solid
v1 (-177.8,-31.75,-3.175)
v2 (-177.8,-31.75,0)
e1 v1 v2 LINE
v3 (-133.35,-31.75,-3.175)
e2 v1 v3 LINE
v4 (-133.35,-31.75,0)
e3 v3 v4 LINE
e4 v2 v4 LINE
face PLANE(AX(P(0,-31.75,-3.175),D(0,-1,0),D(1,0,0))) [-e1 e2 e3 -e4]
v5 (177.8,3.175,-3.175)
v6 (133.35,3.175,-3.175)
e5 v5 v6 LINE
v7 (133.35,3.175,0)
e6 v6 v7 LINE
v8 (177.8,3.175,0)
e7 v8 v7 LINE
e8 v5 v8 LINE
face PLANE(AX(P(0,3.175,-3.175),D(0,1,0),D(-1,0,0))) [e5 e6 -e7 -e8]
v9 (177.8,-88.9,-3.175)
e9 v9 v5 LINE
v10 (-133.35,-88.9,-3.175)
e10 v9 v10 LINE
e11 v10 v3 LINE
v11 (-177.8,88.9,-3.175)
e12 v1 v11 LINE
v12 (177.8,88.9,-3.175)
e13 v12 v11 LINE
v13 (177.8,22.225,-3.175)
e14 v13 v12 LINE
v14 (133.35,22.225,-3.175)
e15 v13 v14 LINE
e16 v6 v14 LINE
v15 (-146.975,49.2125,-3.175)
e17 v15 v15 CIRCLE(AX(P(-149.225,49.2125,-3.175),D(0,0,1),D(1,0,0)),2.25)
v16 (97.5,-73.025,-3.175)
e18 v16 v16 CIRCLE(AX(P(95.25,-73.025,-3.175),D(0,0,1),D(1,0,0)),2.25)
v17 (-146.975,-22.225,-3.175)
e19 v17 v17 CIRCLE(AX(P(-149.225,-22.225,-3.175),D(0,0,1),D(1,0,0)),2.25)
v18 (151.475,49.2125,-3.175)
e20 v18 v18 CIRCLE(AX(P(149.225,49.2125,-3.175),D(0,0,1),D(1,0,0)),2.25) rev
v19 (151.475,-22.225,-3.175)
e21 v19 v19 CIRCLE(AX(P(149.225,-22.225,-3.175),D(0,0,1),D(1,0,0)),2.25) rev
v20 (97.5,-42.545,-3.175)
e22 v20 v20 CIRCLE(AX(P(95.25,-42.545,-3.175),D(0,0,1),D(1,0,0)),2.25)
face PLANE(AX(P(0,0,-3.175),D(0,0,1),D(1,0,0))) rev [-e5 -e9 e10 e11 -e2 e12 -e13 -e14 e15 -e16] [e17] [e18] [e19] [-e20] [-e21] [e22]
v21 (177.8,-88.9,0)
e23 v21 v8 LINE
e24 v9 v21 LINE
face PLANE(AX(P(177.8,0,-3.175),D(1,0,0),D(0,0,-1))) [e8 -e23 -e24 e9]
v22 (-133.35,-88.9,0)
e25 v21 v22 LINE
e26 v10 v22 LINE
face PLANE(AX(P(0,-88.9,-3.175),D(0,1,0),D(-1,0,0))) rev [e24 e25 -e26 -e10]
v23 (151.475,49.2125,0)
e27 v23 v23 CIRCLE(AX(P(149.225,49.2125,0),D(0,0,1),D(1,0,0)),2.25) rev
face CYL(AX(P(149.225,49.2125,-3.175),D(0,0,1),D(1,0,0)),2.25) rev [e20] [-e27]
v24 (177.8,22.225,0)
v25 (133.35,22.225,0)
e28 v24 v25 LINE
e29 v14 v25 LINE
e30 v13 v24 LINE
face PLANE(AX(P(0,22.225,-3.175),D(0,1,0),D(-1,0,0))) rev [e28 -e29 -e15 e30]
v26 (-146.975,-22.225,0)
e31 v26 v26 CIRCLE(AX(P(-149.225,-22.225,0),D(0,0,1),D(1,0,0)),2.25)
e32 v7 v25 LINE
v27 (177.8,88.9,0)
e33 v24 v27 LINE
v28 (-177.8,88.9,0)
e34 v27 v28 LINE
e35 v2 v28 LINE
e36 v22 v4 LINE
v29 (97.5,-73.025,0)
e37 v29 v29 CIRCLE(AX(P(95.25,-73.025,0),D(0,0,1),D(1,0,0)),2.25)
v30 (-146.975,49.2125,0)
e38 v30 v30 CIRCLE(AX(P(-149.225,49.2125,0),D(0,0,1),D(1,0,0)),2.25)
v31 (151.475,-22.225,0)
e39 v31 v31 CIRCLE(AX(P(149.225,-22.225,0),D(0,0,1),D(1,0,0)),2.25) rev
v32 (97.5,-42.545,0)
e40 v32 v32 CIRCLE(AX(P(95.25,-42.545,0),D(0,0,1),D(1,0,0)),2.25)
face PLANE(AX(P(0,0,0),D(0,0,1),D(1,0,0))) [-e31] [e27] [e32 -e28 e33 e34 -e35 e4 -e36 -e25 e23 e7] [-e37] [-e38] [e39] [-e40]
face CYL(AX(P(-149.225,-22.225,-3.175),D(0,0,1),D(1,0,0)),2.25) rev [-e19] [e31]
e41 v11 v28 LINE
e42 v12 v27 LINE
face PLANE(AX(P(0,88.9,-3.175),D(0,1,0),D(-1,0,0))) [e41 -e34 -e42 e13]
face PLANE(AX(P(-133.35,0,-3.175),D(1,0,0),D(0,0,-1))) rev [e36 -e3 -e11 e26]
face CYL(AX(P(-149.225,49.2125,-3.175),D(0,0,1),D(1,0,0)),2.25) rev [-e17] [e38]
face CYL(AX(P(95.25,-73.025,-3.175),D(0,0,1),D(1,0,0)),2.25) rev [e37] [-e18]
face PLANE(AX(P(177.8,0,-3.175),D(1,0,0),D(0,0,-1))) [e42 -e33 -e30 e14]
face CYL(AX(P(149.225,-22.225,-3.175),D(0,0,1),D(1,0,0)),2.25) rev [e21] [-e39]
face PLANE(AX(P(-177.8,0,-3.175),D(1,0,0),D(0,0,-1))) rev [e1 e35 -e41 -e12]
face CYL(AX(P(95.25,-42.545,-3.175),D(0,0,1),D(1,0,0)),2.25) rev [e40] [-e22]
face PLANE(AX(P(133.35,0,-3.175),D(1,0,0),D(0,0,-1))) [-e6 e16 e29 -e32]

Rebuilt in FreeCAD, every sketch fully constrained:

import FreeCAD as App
import Part
import Sketcher

V = App.Vector
Q = App.Units.Quantity


def add_polygon(sketch, points):
    """Adds a closed chain of lines whose ends are joined by coincident constraints."""
    first, n = sketch.GeometryCount, len(points)
    for a, b in zip(points, points[1:] + points[:1]):
        sketch.addGeometry(Part.LineSegment(App.Vector(*a, 0), App.Vector(*b, 0)), False)
    for i in range(n):
        sketch.addConstraint(Sketcher.Constraint("Coincident", first + i, 2, first + (i + 1) % n, 1))

doc = App.newDocument("Part")
params = doc.addObject("Spreadsheet::Sheet", "Params")
for row, (alias, value) in enumerate([
    ("sketch1_width", "14 in"),
    ("sketch1_width2", "12.25 in"),
    ("sketch1_height", "0.75 in"),
    ("sketch1_height2", "4.75 in"),
    ("sketch1_height3", "3.625 in"),
    ("pad1_length", "0.125 in"),
], start=1):
    params.set(f"A{row}", alias)
    params.set(f"B{row}", "=" + value)
    params.setAlias(f"B{row}", alias)

body = doc.addObject("PartDesign::Body", "Body")

# Sketch on XY plane
sketch1 = doc.addObject("Sketcher::SketchObject", "Sketch")
body.addObject(sketch1)
sketch1.AttachmentSupport = (doc.XY_Plane, [""])
sketch1.MapMode = "FlatFace"
add_polygon(sketch1, [(-133.3, -88.9), (177.8, -88.9), (177.8, 3.2), (133.3, 3.2), (133.3, 22.2), (177.8, 22.2), (177.8, 88.9), (-177.8, 88.9), (-177.8, -31.8), (-133.3, -31.8)])  # lines 0-9
sketch1.addGeometry(Part.Circle(V(-149.2, -22.2, 0), V(0, 0, 1), 2.2), False)  # 10
sketch1.addGeometry(Part.Circle(V(95.2, -73, 0), V(0, 0, 1), 2.2), False)  # 11
sketch1.addGeometry(Part.Circle(V(95.2, -42.5, 0), V(0, 0, 1), 2.2), False)  # 12
sketch1.addGeometry(Part.Circle(V(149.2, -22.2, 0), V(0, 0, 1), 2.2), False)  # 13
sketch1.addGeometry(Part.Circle(V(-149.2, 49.2, 0), V(0, 0, 1), 2.2), False)  # 14
sketch1.addGeometry(Part.Circle(V(149.2, 49.2, 0), V(0, 0, 1), 2.2), False)  # 15
sketch1.addConstraint([
    Sketcher.Constraint("Horizontal", 0),
    Sketcher.Constraint("Vertical", 1),
    Sketcher.Constraint("Horizontal", 2),
    Sketcher.Constraint("Vertical", 3),
    Sketcher.Constraint("Horizontal", 4),
    Sketcher.Constraint("Vertical", 5),
    Sketcher.Constraint("Horizontal", 6),
    Sketcher.Constraint("Vertical", 7),
    Sketcher.Constraint("Horizontal", 8),
    Sketcher.Constraint("Vertical", 9),
    Sketcher.Constraint("Equal", 10, 11),
    Sketcher.Constraint("Equal", 11, 12),
    Sketcher.Constraint("Equal", 12, 13),
    Sketcher.Constraint("Equal", 13, 14),
    Sketcher.Constraint("Equal", 14, 15),
    Sketcher.Constraint("Symmetric", 0, 2, 6, 2, -1, 1),
    Sketcher.Constraint("Symmetric", 10, 3, 13, 3, -2),
    Sketcher.Constraint("Symmetric", 14, 3, 15, 3, -2),
    Sketcher.Constraint("Vertical", 11, 3, 12, 3),
    Sketcher.Constraint("Vertical", 10, 3, 14, 3),
    Sketcher.Constraint("Vertical", 1, 2, 4, 2),
    Sketcher.Constraint("Equal", 4, 8),
    Sketcher.Constraint("DistanceX", 6, 2, 6, 1, Q("14 in")),
    Sketcher.Constraint("DistanceY", 11, 3, 10, 3, Q("2 in")),
    Sketcher.Constraint("DistanceY", 13, 3, 1, 2, Q("1 in")),
    Sketcher.Constraint("DistanceX", 8, 2, 12, 3, Q("9 in")),
    Sketcher.Constraint("DistanceY", 9, 2, 6, 2, Q("7 in")),
    Sketcher.Constraint("DistanceX", 0, 1, 0, 2, Q("12.25 in")),
    Sketcher.Constraint("DistanceY", 3, 1, 3, 2, Q("0.75 in")),
    Sketcher.Constraint("DistanceY", 7, 2, 7, 1, Q("4.75 in")),
    Sketcher.Constraint("DistanceY", 11, 3, 12, 3, Q("1.2 in")),
    Sketcher.Constraint("Diameter", 10, Q("4.5 mm")),
    Sketcher.Constraint("DistanceY", 1, 1, 1, 2, Q("3.625 in")),
    Sketcher.Constraint("DistanceX", 10, 3, 13, 3, Q("11.75 in")),
    Sketcher.Constraint("DistanceY", -1, 1, 14, 3, Q("1.9375 in")),
])
sketch1.setExpression("Constraints[32]", "Params.sketch1_width")
sketch1.setExpression("Constraints[37]", "Params.sketch1_width2")
sketch1.setExpression("Constraints[38]", "Params.sketch1_height")
sketch1.setExpression("Constraints[39]", "Params.sketch1_height2")
sketch1.setExpression("Constraints[42]", "Params.sketch1_height3")
pad1 = doc.addObject("PartDesign::Pad", "Pad")
body.addObject(pad1)
pad1.Profile = sketch1
pad1.setExpression("Length", "Params.pad1_length")
pad1.Reversed = True

doc.recompute()
